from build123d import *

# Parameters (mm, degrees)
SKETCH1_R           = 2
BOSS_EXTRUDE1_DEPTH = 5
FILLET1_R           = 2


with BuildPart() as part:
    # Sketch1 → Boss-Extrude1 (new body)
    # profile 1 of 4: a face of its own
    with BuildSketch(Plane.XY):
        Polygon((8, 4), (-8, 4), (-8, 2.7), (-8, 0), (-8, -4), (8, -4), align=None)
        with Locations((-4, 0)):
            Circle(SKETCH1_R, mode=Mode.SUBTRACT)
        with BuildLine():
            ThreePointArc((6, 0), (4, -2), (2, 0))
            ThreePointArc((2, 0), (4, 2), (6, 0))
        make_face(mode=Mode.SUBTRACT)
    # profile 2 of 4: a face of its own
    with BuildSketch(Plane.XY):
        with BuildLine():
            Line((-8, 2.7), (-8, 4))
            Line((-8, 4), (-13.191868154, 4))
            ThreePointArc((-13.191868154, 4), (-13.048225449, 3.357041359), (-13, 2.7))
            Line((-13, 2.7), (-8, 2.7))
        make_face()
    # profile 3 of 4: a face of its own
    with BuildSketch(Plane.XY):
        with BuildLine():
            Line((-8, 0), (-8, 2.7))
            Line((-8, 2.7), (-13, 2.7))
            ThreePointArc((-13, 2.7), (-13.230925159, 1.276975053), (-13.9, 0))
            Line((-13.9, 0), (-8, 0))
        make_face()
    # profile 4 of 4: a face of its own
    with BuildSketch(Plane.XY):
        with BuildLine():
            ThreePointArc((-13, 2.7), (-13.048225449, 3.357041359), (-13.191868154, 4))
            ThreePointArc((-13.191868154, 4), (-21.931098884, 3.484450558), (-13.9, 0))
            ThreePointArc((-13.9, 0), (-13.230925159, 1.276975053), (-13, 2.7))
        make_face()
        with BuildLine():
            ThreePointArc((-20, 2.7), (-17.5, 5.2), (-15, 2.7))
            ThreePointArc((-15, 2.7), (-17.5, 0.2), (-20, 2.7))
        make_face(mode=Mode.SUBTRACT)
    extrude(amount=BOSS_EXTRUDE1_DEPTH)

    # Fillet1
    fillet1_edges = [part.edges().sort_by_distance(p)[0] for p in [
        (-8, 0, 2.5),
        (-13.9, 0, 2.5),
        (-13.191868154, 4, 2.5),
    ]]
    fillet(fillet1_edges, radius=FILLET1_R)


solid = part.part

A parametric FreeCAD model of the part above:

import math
import FreeCAD as App
import Part
import Sketcher
Q = App.Units.Quantity


def edges_at(feature, points):
    """Names of the edges that pass closest to the given points."""
    edges = feature.Shape.Edges
    near = lambda p: min(range(len(edges)), key=lambda i: edges[i].distToShape(Part.Vertex(*p))[0])
    return sorted({f"Edge{near(p) + 1}" for p in points})

doc = App.newDocument("Part")
params = doc.addObject("Spreadsheet::Sheet", "Params")
for row, (alias, value) in enumerate([
    ("sketch1_diameter", "4 mm"),
    ("sketch1_diameter2", "5 mm"),
    ("sketch1_radius", "4.5 mm"),
    ("sketch1_width", "16 mm"),
    ("sketch1_height", "4 mm"),
    ("pad1_length", "5 mm"),
    ("fillet_radius", "2 mm"),
], start=1):
    params.set(f"A{row}", alias)
    params.set(f"B{row}", "=" + value)
    params.setAlias(f"B{row}", alias)

body = doc.addObject("PartDesign::Body", "Body")

sketch1 = doc.addObject("Sketcher::SketchObject", "Sketch")
body.addObject(sketch1)
sketch1.AttachmentSupport = (doc.XY_Plane, [""])
sketch1.MapMode = "FlatFace"
sketch1.addGeometry(Part.LineSegment(App.Vector(8, 4, 0), App.Vector(-13.2, 4, 0)), False)
sketch1.addGeometry(Part.ArcOfCircle(Part.Circle(App.Vector(-17.5, 2.7, 0), App.Vector(0, 0, 1), 4.5), math.radians(17), math.radians(323)), False)
sketch1.addGeometry(Part.LineSegment(App.Vector(-13.9, 0, 0), App.Vector(-8, 0, 0)), False)
sketch1.addGeometry(Part.LineSegment(App.Vector(-8, 0, 0), App.Vector(-8, -4, 0)), False)
sketch1.addGeometry(Part.LineSegment(App.Vector(-8, -4, 0), App.Vector(8, -4, 0)), False)
sketch1.addGeometry(Part.LineSegment(App.Vector(8, -4, 0), App.Vector(8, 4, 0)), False)
sketch1.addGeometry(Part.Circle(App.Vector(-4, 0, 0), App.Vector(0, 0, 1), 2), False)
sketch1.addGeometry(Part.Circle(App.Vector(4, 0, 0), App.Vector(0, 0, 1), 2), False)
sketch1.addGeometry(Part.Circle(App.Vector(-17.5, 2.7, 0), App.Vector(0, 0, 1), 2.5), False)
sketch1.addConstraint(Sketcher.Constraint("Coincident", 0, 2, 1, 1))
sketch1.addConstraint(Sketcher.Constraint("Coincident", 1, 2, 2, 1))
sketch1.addConstraint(Sketcher.Constraint("Coincident", 2, 2, 3, 1))
sketch1.addConstraint(Sketcher.Constraint("Coincident", 3, 2, 4, 1))
sketch1.addConstraint(Sketcher.Constraint("Coincident", 4, 2, 5, 1))
sketch1.addConstraint(Sketcher.Constraint("Coincident", 5, 2, 0, 1))
sketch1.addConstraint(Sketcher.Constraint("Horizontal", 0))
sketch1.addConstraint(Sketcher.Constraint("Horizontal", 2))
sketch1.addConstraint(Sketcher.Constraint("Vertical", 3))
sketch1.addConstraint(Sketcher.Constraint("Horizontal", 4))
sketch1.addConstraint(Sketcher.Constraint("Vertical", 5))
sketch1.addConstraint(Sketcher.Constraint("Coincident", 8, 3, 1, 3))
sketch1.addConstraint(Sketcher.Constraint("Equal", 6, 7))
sketch1.addConstraint(Sketcher.Constraint("Symmetric", 6, 3, 7, 3, -1, 1))
sketch1.addConstraint(Sketcher.Constraint("Symmetric", 3, 2, 5, 2, -1, 1))
sketch1.addConstraint(Sketcher.Constraint("PointOnObject", 6, 3, -1))
sketch1.addConstraint(Sketcher.Constraint("PointOnObject", 1, 2, -1))
sketch1.addConstraint(Sketcher.Constraint("Diameter", 6, Q("4 mm")))
sketch1.addConstraint(Sketcher.Constraint("Diameter", 8, Q("5 mm")))
sketch1.addConstraint(Sketcher.Constraint("Radius", 1, Q("4.5 mm")))
sketch1.addConstraint(Sketcher.Constraint("DistanceX", 4, 1, 4, 2, Q("16 mm")))
sketch1.addConstraint(Sketcher.Constraint("DistanceY", 3, 2, 3, 1, Q("4 mm")))
sketch1.addConstraint(Sketcher.Constraint("DistanceX", 2, 1, 2, 2, Q("5.9 mm")))
sketch1.addConstraint(Sketcher.Constraint("DistanceX", 6, 3, -1, 1, Q("4 mm")))
sketch1.addConstraint(Sketcher.Constraint("DistanceX", 1, 3, -1, 1, Q("17.5 mm")))
sketch1.setExpression("Constraints[17]", "Params.sketch1_diameter")
sketch1.setExpression("Constraints[18]", "Params.sketch1_diameter2")
sketch1.setExpression("Constraints[19]", "Params.sketch1_radius")
sketch1.setExpression("Constraints[20]", "Params.sketch1_width")
sketch1.setExpression("Constraints[21]", "Params.sketch1_height")
pad1 = doc.addObject("PartDesign::Pad", "Pad")
body.addObject(pad1)
pad1.Profile = sketch1
pad1.setExpression("Length", "Params.pad1_length")
doc.recompute()

fillet = doc.addObject("PartDesign::Fillet", "Fillet")
body.addObject(fillet)
fillet.Base = (pad1, edges_at(pad1, [(-8, 0, 2.5), (-13.9, 0, 2.5), (-13.192, 4, 2.5)]))
fillet.setExpression("Radius", "Params.fillet_radius")

doc.recompute()
